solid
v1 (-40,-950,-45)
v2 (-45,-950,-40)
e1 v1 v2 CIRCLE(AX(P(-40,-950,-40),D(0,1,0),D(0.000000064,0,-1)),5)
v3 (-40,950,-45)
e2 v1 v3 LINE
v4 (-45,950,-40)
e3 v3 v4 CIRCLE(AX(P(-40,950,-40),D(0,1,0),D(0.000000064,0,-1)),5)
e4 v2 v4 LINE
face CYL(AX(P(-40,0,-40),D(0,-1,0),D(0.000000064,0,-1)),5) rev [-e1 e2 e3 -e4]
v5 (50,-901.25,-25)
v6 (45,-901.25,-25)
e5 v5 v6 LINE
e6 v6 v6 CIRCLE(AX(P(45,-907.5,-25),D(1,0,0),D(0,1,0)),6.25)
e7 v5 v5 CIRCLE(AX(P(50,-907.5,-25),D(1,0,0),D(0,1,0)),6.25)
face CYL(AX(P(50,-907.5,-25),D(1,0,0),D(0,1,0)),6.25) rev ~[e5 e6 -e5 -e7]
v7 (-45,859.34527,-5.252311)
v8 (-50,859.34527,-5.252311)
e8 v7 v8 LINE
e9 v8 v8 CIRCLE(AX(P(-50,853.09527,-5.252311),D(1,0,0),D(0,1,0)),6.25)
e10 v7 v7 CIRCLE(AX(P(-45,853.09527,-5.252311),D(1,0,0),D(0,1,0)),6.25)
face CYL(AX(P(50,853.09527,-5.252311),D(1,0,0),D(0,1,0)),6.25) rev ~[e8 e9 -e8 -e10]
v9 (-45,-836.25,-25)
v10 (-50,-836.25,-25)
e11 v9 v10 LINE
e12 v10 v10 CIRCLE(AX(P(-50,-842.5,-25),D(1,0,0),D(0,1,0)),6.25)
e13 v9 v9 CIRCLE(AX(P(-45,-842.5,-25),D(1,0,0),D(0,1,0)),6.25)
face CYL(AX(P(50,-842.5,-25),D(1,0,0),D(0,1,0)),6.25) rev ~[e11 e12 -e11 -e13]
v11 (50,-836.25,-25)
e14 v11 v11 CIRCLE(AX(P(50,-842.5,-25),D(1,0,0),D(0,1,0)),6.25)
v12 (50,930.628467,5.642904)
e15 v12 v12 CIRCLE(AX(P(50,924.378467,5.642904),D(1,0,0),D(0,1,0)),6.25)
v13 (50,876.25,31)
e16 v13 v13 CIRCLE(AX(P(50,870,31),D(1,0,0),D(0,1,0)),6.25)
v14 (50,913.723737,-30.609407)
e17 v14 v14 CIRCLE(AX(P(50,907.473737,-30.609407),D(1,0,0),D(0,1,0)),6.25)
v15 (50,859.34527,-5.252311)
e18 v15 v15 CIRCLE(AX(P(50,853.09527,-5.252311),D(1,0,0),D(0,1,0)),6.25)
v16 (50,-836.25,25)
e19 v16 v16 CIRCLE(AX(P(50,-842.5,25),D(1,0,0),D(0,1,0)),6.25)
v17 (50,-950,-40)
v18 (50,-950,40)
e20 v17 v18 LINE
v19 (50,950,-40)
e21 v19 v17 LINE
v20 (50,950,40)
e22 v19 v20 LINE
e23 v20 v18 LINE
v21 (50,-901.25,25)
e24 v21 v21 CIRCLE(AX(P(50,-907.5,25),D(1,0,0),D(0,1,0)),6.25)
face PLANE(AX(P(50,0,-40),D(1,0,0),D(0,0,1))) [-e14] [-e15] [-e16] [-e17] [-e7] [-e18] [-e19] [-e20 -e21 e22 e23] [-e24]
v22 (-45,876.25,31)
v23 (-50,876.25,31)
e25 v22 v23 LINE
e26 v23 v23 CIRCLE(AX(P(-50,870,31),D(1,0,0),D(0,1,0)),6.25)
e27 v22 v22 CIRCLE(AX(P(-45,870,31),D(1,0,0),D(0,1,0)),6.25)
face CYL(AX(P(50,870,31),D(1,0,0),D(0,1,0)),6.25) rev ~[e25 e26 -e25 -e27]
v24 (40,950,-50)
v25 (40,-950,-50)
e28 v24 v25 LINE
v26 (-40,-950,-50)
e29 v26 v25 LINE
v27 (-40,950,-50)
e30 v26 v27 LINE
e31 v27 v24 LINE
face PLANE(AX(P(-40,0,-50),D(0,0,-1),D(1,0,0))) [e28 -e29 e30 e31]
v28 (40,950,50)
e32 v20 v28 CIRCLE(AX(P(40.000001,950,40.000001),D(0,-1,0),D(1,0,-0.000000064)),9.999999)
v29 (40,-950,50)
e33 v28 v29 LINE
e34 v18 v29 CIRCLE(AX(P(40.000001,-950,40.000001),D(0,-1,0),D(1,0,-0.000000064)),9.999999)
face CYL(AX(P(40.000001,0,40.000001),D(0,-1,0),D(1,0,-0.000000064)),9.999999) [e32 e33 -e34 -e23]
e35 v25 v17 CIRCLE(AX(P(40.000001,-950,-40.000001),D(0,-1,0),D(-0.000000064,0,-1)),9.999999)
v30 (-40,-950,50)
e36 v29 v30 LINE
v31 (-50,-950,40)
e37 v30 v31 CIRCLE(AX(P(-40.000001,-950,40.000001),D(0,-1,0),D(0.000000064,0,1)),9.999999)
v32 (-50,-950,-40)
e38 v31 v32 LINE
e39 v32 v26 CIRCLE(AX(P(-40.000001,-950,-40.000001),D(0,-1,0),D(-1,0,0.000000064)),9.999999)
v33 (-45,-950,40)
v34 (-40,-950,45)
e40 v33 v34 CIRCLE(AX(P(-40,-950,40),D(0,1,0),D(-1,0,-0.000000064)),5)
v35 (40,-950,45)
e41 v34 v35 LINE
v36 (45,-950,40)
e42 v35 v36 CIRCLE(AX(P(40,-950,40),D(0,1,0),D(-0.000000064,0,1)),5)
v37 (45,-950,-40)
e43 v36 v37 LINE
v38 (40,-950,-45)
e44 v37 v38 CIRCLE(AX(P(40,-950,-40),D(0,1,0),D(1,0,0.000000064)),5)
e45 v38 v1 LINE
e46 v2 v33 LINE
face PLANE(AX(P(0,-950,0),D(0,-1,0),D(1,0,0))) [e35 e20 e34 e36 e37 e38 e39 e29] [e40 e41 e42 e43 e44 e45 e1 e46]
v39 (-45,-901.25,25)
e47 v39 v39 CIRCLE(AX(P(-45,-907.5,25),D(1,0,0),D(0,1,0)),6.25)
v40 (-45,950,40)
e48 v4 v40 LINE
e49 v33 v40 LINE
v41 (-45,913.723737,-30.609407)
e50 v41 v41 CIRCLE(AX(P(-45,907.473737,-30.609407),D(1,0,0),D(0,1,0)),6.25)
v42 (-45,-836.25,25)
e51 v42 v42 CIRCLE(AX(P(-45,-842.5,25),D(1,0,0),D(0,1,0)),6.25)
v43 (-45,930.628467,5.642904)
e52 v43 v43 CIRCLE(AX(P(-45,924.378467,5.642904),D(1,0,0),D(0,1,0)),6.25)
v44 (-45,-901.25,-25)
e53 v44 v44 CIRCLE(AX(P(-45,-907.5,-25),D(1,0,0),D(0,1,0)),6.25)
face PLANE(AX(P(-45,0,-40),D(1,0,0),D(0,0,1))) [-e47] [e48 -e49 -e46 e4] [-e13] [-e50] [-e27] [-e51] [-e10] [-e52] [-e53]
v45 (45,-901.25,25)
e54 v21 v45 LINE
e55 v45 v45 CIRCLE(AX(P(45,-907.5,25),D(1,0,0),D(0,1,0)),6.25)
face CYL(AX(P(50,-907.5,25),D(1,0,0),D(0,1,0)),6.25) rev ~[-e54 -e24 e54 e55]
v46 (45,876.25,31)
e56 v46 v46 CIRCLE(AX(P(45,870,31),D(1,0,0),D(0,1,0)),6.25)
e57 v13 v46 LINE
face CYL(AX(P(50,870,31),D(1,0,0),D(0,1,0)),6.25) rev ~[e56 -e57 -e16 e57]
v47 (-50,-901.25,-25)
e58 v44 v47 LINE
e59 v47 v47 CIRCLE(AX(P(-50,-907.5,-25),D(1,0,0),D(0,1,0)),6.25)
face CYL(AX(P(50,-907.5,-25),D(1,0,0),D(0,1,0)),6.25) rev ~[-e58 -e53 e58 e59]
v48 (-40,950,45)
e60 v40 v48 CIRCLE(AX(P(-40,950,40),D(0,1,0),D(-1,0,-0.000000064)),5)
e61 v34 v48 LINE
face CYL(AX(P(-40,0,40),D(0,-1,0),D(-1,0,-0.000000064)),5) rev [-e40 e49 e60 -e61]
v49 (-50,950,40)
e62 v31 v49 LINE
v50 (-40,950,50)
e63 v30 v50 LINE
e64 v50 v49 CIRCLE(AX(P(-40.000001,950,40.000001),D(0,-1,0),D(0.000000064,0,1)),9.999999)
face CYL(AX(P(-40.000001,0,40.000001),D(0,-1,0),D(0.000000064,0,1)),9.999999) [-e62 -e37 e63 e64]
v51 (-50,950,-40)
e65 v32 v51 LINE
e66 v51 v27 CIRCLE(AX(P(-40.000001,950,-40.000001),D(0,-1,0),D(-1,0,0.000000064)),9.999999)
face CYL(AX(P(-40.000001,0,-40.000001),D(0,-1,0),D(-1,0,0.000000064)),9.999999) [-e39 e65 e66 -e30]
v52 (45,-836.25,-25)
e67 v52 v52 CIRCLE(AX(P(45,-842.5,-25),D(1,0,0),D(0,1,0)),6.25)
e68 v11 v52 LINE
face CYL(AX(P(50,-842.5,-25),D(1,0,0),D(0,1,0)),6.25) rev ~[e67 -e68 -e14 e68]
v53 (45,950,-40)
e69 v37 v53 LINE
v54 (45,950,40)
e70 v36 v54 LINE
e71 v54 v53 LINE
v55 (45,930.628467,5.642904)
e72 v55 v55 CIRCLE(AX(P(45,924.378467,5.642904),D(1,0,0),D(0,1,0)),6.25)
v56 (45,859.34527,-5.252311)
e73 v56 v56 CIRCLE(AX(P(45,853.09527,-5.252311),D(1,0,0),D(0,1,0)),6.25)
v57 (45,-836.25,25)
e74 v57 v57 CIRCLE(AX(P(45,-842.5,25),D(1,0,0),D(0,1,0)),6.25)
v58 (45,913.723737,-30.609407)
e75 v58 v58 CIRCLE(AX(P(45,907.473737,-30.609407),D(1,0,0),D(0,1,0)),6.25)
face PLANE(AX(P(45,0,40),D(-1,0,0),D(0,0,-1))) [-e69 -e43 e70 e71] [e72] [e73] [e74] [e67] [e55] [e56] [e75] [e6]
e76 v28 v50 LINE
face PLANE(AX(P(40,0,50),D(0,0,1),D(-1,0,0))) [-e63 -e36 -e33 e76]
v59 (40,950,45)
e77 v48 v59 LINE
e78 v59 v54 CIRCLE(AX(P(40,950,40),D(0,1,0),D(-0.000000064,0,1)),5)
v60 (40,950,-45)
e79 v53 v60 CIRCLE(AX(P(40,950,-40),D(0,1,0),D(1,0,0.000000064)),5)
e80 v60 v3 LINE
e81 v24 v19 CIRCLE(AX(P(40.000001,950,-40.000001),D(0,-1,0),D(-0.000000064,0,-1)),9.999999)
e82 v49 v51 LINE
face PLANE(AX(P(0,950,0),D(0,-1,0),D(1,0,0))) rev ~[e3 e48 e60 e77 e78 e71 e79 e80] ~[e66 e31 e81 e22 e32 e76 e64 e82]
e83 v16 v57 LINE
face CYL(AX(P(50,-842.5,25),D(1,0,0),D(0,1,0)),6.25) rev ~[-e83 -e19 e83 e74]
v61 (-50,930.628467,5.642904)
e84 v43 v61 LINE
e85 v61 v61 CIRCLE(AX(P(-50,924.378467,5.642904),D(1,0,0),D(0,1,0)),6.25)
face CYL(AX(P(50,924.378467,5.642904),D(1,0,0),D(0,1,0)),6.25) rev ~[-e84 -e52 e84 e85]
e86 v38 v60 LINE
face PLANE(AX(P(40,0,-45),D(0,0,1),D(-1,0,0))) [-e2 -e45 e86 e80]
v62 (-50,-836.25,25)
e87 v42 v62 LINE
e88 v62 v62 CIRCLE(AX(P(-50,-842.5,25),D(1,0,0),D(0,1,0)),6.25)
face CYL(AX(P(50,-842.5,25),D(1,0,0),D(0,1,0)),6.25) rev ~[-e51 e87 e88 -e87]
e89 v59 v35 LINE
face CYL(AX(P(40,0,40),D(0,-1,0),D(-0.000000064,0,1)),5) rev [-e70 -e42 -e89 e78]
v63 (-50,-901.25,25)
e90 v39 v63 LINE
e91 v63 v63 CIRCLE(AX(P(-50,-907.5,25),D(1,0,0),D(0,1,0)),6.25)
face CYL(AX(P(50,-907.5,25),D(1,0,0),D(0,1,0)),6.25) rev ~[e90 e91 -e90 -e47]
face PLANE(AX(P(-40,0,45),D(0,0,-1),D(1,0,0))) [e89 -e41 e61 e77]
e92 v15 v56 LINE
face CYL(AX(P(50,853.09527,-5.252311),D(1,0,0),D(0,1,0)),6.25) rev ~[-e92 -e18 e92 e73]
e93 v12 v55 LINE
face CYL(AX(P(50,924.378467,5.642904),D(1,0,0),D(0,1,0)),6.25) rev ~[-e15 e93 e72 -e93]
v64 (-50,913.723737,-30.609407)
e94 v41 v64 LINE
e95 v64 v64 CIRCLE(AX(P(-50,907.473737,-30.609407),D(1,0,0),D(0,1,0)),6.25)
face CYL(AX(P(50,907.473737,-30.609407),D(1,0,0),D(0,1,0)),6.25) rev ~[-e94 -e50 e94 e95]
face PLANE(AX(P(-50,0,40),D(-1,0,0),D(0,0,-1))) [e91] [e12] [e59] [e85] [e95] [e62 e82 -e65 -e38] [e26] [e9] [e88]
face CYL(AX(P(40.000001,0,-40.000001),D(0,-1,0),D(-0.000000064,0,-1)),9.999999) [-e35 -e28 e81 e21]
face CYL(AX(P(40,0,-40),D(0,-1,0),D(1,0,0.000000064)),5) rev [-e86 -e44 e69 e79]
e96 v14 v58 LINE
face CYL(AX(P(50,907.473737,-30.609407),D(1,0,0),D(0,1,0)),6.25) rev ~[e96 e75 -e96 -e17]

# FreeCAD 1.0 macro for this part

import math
import FreeCAD as App
import Part
import Sketcher

V = App.Vector

doc = App.newDocument("Part")
params = doc.addObject("Spreadsheet::Sheet", "Params")
for row, (alias, value) in enumerate([
    ("sketch1_radius", "9.999999 mm"),
    ("sketch1_radius2", "5 mm"),
    ("sketch1_width", "80 mm"),
    ("pad1_length", "1900 mm"),
    ("sketch2_diameter", "12.5 mm"),
    ("sketch3_diameter", "12.5 mm"),
], start=1):
    params.set(f"A{row}", alias)
    params.set(f"B{row}", "=" + value)
    params.setAlias(f"B{row}", alias)

body = doc.addObject("PartDesign::Body", "Body")

# Sketch on XZ plane
sketch1 = body.newObject("Sketcher::SketchObject", "Sketch")
sketch1.AttachmentSupport = (doc.getObject("XZ_Plane"), [""])
sketch1.MapMode = "FlatFace"
sketch1.addGeometry([
    Part.LineSegment(V(-40, -50, 0), V(40, -50, 0)),  # 0
    Part.ArcOfCircle(Part.Circle(V(40.000001, -40.000001, 0), V(0, 0, 1), 9.999999), math.radians(-90.000004), math.radians(0.000004)),  # 1
    Part.LineSegment(V(50, -40, 0), V(50, 40, 0)),  # 2
    Part.ArcOfCircle(Part.Circle(V(40.000001, 40.000001, 0), V(0, 0, 1), 9.999999), math.radians(-0.000004), math.radians(90.000004)),  # 3
    Part.LineSegment(V(40, 50, 0), V(-40, 50, 0)),  # 4
    Part.ArcOfCircle(Part.Circle(V(-40.000001, 40.000001, 0), V(0, 0, 1), 9.999999), math.radians(89.999996), math.radians(180.000004)),  # 5
    Part.LineSegment(V(-50, 40, 0), V(-50, -40, 0)),  # 6
    Part.ArcOfCircle(Part.Circle(V(-40.000001, -40.000001, 0), V(0, 0, 1), 9.999999), math.radians(179.999996), math.radians(270.000004)),  # 7
    Part.LineSegment(V(-40, 45, 0), V(40, 45, 0)),  # 8
    Part.ArcOfCircle(Part.Circle(V(40, 40, 0), V(0, 0, 1), 5), math.radians(-0.000004), math.radians(90.000004)),  # 9
    Part.LineSegment(V(45, 40, 0), V(45, -40, 0)),  # 10
    Part.ArcOfCircle(Part.Circle(V(40, -40, 0), V(0, 0, 1), 5), math.radians(-90.000004), math.radians(0.000004)),  # 11
    Part.LineSegment(V(40, -45, 0), V(-40, -45, 0)),  # 12
    Part.ArcOfCircle(Part.Circle(V(-40, -40, 0), V(0, 0, 1), 5), math.radians(179.999996), math.radians(270.000004)),  # 13
    Part.LineSegment(V(-45, -40, 0), V(-45, 40, 0)),  # 14
    Part.ArcOfCircle(Part.Circle(V(-40, 40, 0), V(0, 0, 1), 5), math.radians(89.999996), math.radians(180.000004)),  # 15
], False)
sketch1.addConstraint([
    Sketcher.Constraint("Tangent", 0, 2, 1, 1),
    Sketcher.Constraint("Tangent", 1, 2, 2, 1),
    Sketcher.Constraint("Tangent", 2, 2, 3, 1),
    Sketcher.Constraint("Tangent", 3, 2, 4, 1),
    Sketcher.Constraint("Tangent", 4, 2, 5, 1),
    Sketcher.Constraint("Tangent", 5, 2, 6, 1),
    Sketcher.Constraint("Tangent", 6, 2, 7, 1),
    Sketcher.Constraint("Tangent", 7, 2, 0, 1),
    Sketcher.Constraint("Tangent", 8, 2, 9, 2),
    Sketcher.Constraint("Tangent", 9, 1, 10, 1),
    Sketcher.Constraint("Tangent", 10, 2, 11, 2),
    Sketcher.Constraint("Tangent", 11, 1, 12, 1),
    Sketcher.Constraint("Tangent", 12, 2, 13, 2),
    Sketcher.Constraint("Tangent", 13, 1, 14, 1),
    Sketcher.Constraint("Tangent", 14, 2, 15, 2),
    Sketcher.Constraint("Tangent", 15, 1, 8, 1),
    Sketcher.Constraint("Horizontal", 0),
    Sketcher.Constraint("Vertical", 2),
    Sketcher.Constraint("Horizontal", 4),
    Sketcher.Constraint("Vertical", 6),
    Sketcher.Constraint("Horizontal", 8),
    Sketcher.Constraint("Vertical", 10),
    Sketcher.Constraint("Horizontal", 12),
    Sketcher.Constraint("Vertical", 14),
    Sketcher.Constraint("Coincident", 9, 3, 3, 3),
    Sketcher.Constraint("Coincident", 11, 3, 1, 3),
    Sketcher.Constraint("Coincident", 13, 3, 7, 3),
    Sketcher.Constraint("Equal", 1, 3),
    Sketcher.Constraint("Equal", 3, 5),
    Sketcher.Constraint("Equal", 5, 7),
    Sketcher.Constraint("Equal", 13, 15),
    Sketcher.Constraint("Symmetric", 1, 3, 5, 3, -1, 1),
    Sketcher.Constraint("Equal", 12, 2),
    Sketcher.Constraint("Radius", 1, 9.999999),
    Sketcher.Constraint("Radius", 9, 5.0),
    Sketcher.Constraint("DistanceX", 0, 1, 0, 2, 80.0),
])
sketch1.setExpression("Constraints[33]", "Params.sketch1_radius")
sketch1.setExpression("Constraints[34]", "Params.sketch1_radius2")
sketch1.setExpression("Constraints[35]", "Params.sketch1_width")
pad1 = body.newObject("PartDesign::Pad", "Pad")
pad1.Profile = sketch1
pad1.setExpression("Length", "Params.pad1_length")
pad1.Midplane = True

# Sketch on YZ plane
sketch2 = body.newObject("Sketcher::SketchObject", "Sketch001")
sketch2.AttachmentSupport = (doc.getObject("YZ_Plane"), [""])
sketch2.MapMode = "FlatFace"
sketch2.AttachmentOffset = App.Placement(V(0, 0, 50), App.Rotation())
sketch2.addGeometry([
    Part.Circle(V(-907.5, 25, 0), V(0, 0, 1), 6.25),
    Part.Circle(V(-842.5, 25, 0), V(0, 0, 1), 6.25),
    Part.Circle(V(-842.5, -25, 0), V(0, 0, 1), 6.25),
    Part.Circle(V(-907.5, -25, 0), V(0, 0, 1), 6.25),
], False)
sketch2.addConstraint([
    Sketcher.Constraint("Equal", 0, 1),
    Sketcher.Constraint("Equal", 1, 2),
    Sketcher.Constraint("Equal", 2, 3),
    Sketcher.Constraint("Symmetric", 1, 3, 2, 3, -1),
    Sketcher.Constraint("Symmetric", 0, 3, 3, 3, -1),
    Sketcher.Constraint("Horizontal", 0, 3, 1, 3),
    Sketcher.Constraint("Diameter", 0, 12.5),
    Sketcher.Constraint("DistanceY", -1, 1, 0, 3, 25.0),
    Sketcher.Constraint("DistanceX", 0, 3, 1, 3, 65.0),
    Sketcher.Constraint("DistanceX", 0, 3, -1, 1, 907.5),
])
sketch2.setExpression("Constraints[6]", "Params.sketch2_diameter")
pocket1 = body.newObject("PartDesign::Pocket", "Pocket")
pocket1.Profile = sketch2
pocket1.Type = "ThroughAll"

# Sketch on YZ plane
sketch3 = body.newObject("Sketcher::SketchObject", "Sketch002")
sketch3.AttachmentSupport = (doc.getObject("YZ_Plane"), [""])
sketch3.MapMode = "FlatFace"
sketch3.AttachmentOffset = App.Placement(V(0, 0, 50), App.Rotation())
sketch3.addGeometry([
    Part.Circle(V(870, 31, 0), V(0, 0, 1), 6.25),
    Part.Circle(V(924.378467, 5.642904, 0), V(0, 0, 1), 6.25),
    Part.Circle(V(907.473737, -30.609407, 0), V(0, 0, 1), 6.25),
    Part.Circle(V(853.09527, -5.252311, 0), V(0, 0, 1), 6.25),
], False)
sketch3.addConstraint([
    Sketcher.Constraint("Equal", 0, 1),
    Sketcher.Constraint("Equal", 1, 2),
    Sketcher.Constraint("Equal", 2, 3),
    Sketcher.Constraint("Diameter", 0, 12.5),
    Sketcher.Constraint("DistanceX", -1, 1, 0, 3, 870.0),
    Sketcher.Constraint("DistanceY", -1, 1, 0, 3, 31.0),
    Sketcher.Constraint("DistanceX", -1, 1, 3, 3, 853.09527),
    Sketcher.Constraint("DistanceY", 3, 3, -1, 1, 5.252311),
    Sketcher.Constraint("DistanceX", 2, 3, 1, 3, 16.90473),
    Sketcher.Constraint("DistanceY", 2, 3, 1, 3, 36.252311),
    Sketcher.Constraint("DistanceX", -1, 1, 1, 3, 924.378467),
    Sketcher.Constraint("DistanceY", -1, 1, 1, 3, 5.642904),
])
sketch3.setExpression("Constraints[3]", "Params.sketch3_diameter")
pocket2 = body.newObject("PartDesign::Pocket", "Pocket001")
pocket2.Profile = sketch3
pocket2.Type = "ThroughAll"

doc.recompute()
